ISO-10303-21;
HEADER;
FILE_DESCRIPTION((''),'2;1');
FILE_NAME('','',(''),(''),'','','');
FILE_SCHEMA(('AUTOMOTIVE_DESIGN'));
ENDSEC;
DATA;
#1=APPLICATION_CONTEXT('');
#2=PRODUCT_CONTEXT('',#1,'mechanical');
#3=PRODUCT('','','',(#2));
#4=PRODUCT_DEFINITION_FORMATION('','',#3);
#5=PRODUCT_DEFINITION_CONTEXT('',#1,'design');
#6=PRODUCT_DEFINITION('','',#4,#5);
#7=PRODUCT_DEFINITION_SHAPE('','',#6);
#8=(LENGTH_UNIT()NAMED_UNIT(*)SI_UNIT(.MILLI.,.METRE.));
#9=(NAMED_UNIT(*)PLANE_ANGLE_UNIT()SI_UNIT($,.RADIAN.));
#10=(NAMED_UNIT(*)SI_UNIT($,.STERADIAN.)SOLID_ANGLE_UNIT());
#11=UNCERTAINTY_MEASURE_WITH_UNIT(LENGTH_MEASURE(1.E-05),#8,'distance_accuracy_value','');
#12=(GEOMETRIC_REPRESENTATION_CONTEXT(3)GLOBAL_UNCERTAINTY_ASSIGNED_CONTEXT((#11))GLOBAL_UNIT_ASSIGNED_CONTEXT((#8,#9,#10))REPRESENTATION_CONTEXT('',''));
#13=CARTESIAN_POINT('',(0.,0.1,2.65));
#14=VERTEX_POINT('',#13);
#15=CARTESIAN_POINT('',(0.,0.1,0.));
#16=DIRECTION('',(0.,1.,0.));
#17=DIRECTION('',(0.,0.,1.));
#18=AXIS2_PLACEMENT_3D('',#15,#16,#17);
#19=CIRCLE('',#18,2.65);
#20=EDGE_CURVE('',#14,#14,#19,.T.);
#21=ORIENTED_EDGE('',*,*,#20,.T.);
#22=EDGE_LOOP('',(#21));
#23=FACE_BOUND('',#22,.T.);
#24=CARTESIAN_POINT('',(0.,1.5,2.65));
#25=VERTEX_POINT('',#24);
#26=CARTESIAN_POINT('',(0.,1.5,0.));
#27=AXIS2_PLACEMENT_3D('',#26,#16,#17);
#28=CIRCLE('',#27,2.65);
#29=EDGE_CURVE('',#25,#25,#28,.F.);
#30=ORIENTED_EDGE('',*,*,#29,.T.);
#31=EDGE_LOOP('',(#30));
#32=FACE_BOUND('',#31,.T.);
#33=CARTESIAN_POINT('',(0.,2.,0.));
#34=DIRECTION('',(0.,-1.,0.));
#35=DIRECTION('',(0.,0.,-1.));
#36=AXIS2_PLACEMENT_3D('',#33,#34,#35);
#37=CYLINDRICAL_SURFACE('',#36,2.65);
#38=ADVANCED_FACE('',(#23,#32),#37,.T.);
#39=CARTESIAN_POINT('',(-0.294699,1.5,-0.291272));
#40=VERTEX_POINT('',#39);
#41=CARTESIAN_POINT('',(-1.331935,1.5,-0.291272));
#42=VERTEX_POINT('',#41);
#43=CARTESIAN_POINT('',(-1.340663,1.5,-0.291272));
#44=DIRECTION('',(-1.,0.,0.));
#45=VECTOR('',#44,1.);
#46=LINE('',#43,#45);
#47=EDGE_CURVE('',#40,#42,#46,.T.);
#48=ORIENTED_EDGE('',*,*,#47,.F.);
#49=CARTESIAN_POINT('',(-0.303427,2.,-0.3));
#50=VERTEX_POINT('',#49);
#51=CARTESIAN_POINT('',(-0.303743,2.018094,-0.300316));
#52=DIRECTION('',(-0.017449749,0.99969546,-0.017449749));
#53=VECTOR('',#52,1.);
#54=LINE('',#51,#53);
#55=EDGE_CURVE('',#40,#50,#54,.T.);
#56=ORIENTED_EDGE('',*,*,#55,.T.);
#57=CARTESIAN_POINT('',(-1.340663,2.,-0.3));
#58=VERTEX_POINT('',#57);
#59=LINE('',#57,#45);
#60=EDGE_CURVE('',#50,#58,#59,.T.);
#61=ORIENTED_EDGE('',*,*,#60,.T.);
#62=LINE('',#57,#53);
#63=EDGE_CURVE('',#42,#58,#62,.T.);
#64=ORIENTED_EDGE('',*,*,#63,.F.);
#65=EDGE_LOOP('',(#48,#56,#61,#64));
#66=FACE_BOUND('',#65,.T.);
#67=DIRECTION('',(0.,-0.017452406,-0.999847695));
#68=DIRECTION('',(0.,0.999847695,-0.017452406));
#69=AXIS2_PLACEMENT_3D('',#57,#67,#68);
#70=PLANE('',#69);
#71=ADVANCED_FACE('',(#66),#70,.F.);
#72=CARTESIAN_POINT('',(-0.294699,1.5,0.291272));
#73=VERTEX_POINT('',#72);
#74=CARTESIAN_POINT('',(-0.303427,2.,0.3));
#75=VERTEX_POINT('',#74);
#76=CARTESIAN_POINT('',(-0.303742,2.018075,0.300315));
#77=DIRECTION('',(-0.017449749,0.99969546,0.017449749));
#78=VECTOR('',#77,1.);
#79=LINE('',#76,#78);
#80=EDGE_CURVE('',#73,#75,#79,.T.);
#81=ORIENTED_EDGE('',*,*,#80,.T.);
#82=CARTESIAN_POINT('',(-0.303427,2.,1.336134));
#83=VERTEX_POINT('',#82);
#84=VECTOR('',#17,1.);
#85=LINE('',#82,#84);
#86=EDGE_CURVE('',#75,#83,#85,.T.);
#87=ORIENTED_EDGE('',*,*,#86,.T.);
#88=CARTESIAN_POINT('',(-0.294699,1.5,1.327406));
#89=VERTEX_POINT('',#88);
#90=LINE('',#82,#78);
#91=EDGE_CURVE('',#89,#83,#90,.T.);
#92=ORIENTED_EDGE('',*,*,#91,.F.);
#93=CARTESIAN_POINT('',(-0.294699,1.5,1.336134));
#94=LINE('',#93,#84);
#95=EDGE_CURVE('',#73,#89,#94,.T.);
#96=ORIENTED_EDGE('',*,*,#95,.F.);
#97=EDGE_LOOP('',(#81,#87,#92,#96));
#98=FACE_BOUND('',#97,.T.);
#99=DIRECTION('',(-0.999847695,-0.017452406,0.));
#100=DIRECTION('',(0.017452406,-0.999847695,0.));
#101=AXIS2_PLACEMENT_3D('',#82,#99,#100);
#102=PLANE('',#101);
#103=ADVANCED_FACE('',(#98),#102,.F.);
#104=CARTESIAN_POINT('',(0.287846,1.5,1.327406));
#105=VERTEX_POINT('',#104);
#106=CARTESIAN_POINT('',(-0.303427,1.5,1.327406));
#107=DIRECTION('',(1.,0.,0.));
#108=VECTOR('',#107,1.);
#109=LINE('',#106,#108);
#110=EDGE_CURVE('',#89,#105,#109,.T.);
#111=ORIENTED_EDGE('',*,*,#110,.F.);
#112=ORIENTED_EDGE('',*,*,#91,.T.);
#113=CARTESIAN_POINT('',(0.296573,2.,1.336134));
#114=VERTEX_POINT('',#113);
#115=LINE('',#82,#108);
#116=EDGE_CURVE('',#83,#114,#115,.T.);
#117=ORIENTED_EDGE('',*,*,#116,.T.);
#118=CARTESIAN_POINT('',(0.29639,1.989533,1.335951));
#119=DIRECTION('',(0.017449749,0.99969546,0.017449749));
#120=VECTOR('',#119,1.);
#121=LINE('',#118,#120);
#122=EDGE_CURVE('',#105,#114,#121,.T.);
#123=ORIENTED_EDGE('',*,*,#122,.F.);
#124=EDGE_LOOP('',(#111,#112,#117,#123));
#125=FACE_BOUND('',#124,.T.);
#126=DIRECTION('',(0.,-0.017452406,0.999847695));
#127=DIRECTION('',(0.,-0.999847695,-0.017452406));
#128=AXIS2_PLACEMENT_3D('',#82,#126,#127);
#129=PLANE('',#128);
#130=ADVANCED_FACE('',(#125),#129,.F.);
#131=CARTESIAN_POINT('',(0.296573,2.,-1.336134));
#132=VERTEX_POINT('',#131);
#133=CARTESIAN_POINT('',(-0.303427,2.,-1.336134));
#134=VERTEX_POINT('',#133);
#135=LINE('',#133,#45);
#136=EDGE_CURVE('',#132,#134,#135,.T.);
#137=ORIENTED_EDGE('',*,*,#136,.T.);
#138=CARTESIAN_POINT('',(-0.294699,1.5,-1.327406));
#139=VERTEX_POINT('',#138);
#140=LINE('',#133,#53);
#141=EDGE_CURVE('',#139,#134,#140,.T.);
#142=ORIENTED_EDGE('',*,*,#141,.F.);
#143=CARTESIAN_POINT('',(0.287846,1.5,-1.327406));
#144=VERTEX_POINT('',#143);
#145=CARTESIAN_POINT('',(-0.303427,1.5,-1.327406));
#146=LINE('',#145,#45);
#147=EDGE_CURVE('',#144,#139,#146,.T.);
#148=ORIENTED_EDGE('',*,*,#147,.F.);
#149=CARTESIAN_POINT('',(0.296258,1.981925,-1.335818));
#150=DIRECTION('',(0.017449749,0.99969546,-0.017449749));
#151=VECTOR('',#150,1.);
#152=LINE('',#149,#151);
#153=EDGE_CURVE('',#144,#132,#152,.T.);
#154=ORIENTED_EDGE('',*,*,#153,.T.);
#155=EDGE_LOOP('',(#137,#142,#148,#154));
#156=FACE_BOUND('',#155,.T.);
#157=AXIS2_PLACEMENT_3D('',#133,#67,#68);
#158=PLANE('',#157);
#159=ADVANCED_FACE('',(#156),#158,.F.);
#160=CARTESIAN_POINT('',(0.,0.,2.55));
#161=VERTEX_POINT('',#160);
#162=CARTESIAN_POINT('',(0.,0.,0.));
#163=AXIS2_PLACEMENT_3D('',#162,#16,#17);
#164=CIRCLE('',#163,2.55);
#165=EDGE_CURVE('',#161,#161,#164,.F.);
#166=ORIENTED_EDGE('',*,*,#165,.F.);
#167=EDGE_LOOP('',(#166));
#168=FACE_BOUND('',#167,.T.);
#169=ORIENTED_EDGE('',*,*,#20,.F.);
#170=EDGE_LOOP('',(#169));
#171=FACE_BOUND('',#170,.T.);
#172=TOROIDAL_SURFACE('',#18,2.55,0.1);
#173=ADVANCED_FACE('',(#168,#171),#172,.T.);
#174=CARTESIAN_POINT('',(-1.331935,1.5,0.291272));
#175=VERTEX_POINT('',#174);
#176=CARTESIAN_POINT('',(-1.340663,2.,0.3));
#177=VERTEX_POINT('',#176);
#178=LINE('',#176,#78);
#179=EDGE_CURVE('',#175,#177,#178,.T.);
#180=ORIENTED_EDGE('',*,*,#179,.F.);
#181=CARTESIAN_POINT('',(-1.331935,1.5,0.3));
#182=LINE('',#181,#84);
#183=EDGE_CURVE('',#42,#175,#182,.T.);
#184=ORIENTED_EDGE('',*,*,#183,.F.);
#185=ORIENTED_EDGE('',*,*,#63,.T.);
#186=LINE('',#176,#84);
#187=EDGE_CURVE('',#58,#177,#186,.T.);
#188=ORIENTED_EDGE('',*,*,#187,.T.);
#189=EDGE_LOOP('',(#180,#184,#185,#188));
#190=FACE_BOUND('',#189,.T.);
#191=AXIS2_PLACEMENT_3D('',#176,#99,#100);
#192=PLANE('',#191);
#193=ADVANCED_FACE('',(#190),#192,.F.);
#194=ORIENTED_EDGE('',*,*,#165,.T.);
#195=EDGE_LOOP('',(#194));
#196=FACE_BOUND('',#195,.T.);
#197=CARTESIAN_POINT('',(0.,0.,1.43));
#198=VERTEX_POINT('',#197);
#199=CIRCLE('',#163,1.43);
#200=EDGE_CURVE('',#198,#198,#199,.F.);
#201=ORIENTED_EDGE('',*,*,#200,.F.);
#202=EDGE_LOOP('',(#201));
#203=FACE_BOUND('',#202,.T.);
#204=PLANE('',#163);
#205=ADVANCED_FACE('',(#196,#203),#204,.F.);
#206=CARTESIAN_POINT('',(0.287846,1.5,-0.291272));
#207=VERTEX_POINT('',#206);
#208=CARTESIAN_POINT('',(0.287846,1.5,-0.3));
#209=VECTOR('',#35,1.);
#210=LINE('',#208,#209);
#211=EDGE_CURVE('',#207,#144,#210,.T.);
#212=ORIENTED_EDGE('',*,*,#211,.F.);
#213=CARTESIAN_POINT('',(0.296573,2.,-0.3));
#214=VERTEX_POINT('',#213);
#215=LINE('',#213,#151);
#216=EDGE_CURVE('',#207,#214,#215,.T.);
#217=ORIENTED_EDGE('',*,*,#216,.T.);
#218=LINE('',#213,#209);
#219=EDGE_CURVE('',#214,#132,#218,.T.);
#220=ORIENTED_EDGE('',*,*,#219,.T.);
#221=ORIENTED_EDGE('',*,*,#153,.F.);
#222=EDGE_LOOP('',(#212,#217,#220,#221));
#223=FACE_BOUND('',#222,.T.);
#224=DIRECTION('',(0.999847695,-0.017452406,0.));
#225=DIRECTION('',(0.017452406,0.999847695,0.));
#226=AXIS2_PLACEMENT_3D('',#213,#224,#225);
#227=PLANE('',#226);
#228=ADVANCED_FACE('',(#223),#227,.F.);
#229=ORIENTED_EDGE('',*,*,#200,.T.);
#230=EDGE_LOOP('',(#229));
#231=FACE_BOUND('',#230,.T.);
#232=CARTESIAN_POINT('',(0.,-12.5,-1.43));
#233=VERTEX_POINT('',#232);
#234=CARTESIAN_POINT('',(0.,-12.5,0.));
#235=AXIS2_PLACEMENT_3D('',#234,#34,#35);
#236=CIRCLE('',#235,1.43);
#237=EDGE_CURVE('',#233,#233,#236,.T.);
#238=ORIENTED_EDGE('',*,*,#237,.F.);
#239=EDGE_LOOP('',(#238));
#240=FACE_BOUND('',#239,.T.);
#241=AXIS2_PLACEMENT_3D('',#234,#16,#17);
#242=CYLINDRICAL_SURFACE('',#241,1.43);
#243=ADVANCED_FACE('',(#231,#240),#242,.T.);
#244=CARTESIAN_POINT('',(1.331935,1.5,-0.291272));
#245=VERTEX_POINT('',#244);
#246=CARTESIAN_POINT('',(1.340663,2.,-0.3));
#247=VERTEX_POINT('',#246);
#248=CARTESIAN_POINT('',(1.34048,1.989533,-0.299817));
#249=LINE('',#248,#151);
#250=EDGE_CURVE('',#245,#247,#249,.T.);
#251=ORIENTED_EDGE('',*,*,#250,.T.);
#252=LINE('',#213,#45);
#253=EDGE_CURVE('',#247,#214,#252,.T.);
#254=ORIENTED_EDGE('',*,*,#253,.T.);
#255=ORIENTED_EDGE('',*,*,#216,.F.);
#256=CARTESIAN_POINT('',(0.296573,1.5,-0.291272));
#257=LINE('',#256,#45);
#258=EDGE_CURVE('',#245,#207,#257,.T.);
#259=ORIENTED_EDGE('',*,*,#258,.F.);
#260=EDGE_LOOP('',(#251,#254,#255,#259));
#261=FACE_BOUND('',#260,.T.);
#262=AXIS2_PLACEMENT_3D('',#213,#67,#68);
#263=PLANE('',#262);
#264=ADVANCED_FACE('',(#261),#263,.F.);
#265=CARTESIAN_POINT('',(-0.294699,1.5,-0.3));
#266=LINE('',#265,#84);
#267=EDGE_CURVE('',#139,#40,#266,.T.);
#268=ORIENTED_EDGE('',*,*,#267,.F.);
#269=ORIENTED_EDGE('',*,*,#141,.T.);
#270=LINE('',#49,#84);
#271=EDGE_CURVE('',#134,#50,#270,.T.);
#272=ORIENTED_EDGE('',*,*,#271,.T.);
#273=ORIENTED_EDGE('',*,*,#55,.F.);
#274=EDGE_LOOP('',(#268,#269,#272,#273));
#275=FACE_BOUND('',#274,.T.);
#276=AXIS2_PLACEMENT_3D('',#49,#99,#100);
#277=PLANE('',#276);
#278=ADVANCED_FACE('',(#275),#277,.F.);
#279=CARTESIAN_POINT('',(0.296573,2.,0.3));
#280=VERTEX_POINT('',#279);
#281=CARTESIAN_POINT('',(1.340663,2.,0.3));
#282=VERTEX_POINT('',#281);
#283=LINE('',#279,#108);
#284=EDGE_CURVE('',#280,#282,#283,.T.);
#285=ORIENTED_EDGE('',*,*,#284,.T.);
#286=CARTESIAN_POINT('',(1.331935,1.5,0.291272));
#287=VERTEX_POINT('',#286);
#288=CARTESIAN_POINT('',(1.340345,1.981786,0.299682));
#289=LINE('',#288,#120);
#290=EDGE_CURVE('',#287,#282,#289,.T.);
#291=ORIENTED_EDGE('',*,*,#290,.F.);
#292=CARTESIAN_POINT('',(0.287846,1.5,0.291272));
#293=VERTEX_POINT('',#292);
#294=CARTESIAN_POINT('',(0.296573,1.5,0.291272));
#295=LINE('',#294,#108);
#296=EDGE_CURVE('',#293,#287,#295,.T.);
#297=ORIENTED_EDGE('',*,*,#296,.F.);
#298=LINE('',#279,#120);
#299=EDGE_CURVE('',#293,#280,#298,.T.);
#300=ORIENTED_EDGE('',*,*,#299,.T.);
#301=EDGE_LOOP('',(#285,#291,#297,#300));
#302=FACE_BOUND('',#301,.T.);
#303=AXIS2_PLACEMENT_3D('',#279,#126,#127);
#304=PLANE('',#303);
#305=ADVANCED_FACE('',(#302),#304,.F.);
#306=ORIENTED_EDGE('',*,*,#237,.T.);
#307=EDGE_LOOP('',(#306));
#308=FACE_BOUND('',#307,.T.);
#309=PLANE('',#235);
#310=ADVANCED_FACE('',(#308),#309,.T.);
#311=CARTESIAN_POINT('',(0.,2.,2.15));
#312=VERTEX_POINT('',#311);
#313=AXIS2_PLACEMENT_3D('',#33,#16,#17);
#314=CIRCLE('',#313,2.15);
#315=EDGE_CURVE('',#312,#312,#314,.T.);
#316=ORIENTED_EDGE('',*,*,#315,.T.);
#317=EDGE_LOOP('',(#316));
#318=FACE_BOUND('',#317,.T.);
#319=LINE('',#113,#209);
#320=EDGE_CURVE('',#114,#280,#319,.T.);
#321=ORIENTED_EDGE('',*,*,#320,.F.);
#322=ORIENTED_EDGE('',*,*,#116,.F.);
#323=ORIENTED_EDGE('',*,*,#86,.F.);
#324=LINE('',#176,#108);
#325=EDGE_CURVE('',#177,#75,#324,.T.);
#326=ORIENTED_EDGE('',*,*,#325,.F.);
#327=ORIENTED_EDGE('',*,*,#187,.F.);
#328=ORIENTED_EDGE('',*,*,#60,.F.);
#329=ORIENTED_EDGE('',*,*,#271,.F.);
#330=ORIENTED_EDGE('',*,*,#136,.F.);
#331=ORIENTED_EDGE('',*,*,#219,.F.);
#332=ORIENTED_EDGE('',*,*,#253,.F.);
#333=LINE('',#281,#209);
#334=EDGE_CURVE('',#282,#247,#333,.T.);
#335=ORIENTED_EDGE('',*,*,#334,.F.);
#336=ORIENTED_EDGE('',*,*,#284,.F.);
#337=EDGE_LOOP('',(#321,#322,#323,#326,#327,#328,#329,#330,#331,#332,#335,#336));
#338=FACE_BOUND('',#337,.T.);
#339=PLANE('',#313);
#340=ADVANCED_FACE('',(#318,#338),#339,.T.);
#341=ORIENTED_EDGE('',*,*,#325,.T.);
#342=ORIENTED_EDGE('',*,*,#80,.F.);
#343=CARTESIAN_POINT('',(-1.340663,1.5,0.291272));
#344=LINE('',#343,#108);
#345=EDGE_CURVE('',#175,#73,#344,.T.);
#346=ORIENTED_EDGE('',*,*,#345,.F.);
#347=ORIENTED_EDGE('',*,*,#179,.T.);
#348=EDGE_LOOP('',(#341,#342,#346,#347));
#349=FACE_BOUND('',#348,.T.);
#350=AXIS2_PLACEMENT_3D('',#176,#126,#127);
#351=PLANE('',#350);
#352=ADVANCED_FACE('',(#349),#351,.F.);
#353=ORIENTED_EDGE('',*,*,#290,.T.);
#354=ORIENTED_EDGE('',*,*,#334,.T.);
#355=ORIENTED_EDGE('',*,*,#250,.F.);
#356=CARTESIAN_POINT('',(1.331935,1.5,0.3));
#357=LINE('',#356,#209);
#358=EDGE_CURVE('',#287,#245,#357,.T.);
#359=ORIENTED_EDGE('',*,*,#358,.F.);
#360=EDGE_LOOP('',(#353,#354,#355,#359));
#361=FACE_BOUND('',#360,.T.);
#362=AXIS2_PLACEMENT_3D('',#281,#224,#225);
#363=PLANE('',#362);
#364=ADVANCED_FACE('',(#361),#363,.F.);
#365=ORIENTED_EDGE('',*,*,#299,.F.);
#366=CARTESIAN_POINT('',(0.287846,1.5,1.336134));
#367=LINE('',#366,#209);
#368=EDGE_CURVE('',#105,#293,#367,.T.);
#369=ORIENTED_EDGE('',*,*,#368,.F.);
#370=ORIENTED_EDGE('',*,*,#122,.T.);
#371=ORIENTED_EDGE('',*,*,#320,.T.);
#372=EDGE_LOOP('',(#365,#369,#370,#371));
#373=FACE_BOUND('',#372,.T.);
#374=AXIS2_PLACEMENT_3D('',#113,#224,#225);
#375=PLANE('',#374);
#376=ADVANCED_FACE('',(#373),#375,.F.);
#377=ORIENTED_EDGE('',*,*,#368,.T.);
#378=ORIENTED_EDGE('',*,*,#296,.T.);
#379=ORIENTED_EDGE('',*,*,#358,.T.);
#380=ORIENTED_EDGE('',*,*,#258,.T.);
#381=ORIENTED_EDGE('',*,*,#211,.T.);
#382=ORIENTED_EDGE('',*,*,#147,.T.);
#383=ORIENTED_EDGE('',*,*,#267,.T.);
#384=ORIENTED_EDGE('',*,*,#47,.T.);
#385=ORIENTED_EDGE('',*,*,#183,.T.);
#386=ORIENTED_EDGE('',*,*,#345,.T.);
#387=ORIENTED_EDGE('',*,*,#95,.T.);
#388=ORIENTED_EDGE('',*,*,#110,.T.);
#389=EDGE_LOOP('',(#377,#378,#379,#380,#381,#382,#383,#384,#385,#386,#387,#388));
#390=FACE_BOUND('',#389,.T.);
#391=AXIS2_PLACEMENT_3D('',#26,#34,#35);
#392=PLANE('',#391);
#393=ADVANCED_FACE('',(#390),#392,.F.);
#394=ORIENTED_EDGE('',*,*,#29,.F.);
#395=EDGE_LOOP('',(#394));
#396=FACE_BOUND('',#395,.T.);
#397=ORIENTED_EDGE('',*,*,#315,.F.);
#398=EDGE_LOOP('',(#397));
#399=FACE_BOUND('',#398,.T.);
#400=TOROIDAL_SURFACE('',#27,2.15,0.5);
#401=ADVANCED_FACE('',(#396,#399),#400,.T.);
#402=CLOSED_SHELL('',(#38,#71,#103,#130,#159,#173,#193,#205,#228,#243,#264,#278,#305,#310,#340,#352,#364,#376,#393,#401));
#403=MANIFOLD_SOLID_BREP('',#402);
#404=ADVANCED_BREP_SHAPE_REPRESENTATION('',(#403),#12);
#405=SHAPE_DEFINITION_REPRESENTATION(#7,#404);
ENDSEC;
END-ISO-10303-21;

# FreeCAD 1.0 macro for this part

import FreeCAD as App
import Part
import Sketcher
from FreeCAD import Vector


def edges_at(feature, points):
    """Names of the edges that pass closest to the given points."""
    edges = feature.Shape.Edges
    near = lambda p: min(range(len(edges)), key=lambda i: edges[i].distToShape(Part.Vertex(*p))[0])
    return sorted({f"Edge{near(p) + 1}" for p in points})


def add_polygon(sketch, points):
    """Adds a closed chain of lines whose ends are joined by coincident constraints."""
    first, n = sketch.GeometryCount, len(points)
    for a, b in zip(points, points[1:] + points[:1]):
        sketch.addGeometry(Part.LineSegment(App.Vector(*a, 0), App.Vector(*b, 0)), False)
    for i in range(n):
        sketch.addConstraint(Sketcher.Constraint("Coincident", first + i, 2, first + (i + 1) % n, 1))

doc = App.newDocument("Part")
params = doc.addObject("Spreadsheet::Sheet", "Params")
for row, (alias, value) in enumerate([
    ("sketch1_diameter", "5.3 mm"),
    ("pad1_length", "2 mm"),
    ("sketch2_diameter", "2.86 mm"),
    ("pad2_length", "12.5 mm"),
    ("fillet_radius", "0.5 mm"),
    ("fillet2_radius", "0.1 mm"),
    ("sketch3_width", "0.6 mm"),
    ("pocket1_length", "0.5 mm"),
    ("pocket1_taper", "-1 deg"),
], start=1):
    params.set(f"A{row}", alias)
    params.set(f"B{row}", "=" + value)
    params.setAlias(f"B{row}", alias)

body = doc.addObject("PartDesign::Body", "Body")

sketch1 = body.newObject("Sketcher::SketchObject", "Sketch")
sketch1.AttachmentSupport = (doc.getObject("XZ_Plane"), [""])
sketch1.MapMode = "FlatFace"
sketch1.addGeometry(Part.Circle(Vector(0, 0, 0), Vector(0, 0, 1), 2.65), False)
sketch1.addConstraint([
    Sketcher.Constraint("Coincident", 0, 3, -1, 1),
    Sketcher.Constraint("Diameter", 0, 5.3),
])
sketch1.setExpression("Constraints[1]", "Params.sketch1_diameter")
pad1 = body.newObject("PartDesign::Pad", "Pad")
pad1.Profile = sketch1
pad1.setExpression("Length", "Params.pad1_length")
pad1.Reversed = True

sketch2 = body.newObject("Sketcher::SketchObject", "Sketch001")
sketch2.AttachmentSupport = (doc.getObject("XZ_Plane"), [""])
sketch2.MapMode = "FlatFace"
sketch2.addGeometry(Part.Circle(Vector(0, 0, 0), Vector(0, 0, 1), 1.43), False)
sketch2.addConstraint([
    Sketcher.Constraint("Coincident", 0, 3, -1, 1),
    Sketcher.Constraint("Diameter", 0, 2.86),
])
sketch2.setExpression("Constraints[1]", "Params.sketch2_diameter")
pad2 = body.newObject("PartDesign::Pad", "Pad001")
pad2.Profile = sketch2
pad2.setExpression("Length", "Params.pad2_length")
doc.recompute()

fillet = body.newObject("PartDesign::Fillet", "Fillet")
fillet.Base = (pad2, edges_at(pad2, [(-2.65, 2, 0)]))
fillet.setExpression("Radius", "Params.fillet_radius")
doc.recompute()

fillet2 = body.newObject("PartDesign::Fillet", "Fillet001")
fillet2.Base = (fillet, edges_at(fillet, [(-2.65, 0, 0)]))
fillet2.setExpression("Radius", "Params.fillet2_radius")

sketch3 = body.newObject("Sketcher::SketchObject", "Sketch002")
sketch3.AttachmentSupport = (doc.getObject("XZ_Plane"), [""])
sketch3.MapMode = "FlatFace"
sketch3.AttachmentOffset = App.Placement(Vector(0, 0, -2), App.Rotation())
add_polygon(sketch3, [(0.296573, -0.3), (0.296573, -1.336134), (-0.303427, -1.336134), (-0.303427, -0.3), (-1.340663, -0.3), (-1.340663, 0.3), (-0.303427, 0.3), (-0.303427, 1.336134), (0.296573, 1.336134), (0.296573, 0.3), (1.340663, 0.3), (1.340663, -0.3)])
sketch3.addConstraint([
    Sketcher.Constraint("Vertical", 0),
    Sketcher.Constraint("Horizontal", 1),
    Sketcher.Constraint("Vertical", 2),
    Sketcher.Constraint("Horizontal", 3),
    Sketcher.Constraint("Vertical", 4),
    Sketcher.Constraint("Horizontal", 5),
    Sketcher.Constraint("Vertical", 6),
    Sketcher.Constraint("Horizontal", 7),
    Sketcher.Constraint("Vertical", 8),
    Sketcher.Constraint("Horizontal", 9),
    Sketcher.Constraint("Vertical", 10),
    Sketcher.Constraint("Horizontal", 11),
    Sketcher.Constraint("Symmetric", 3, 2, 9, 2, -1, 1),
    Sketcher.Constraint("Symmetric", 2, 2, 5, 2, -1),
    Sketcher.Constraint("Symmetric", 0, 2, 7, 2, -1),
    Sketcher.Constraint("Horizontal", 3, 2, 10, 2),
    Sketcher.Constraint("Equal", 7, 4),
    Sketcher.Constraint("DistanceX", 1, 2, 1, 1, 0.6),
    Sketcher.Constraint("DistanceX", 9, 1, 9, 2, 1.04409),
    Sketcher.Constraint("DistanceX", 3, 2, 3, 1, 1.037236),
    Sketcher.Constraint("DistanceY", 0, 2, 0, 1, 1.036134),
])
sketch3.setExpression("Constraints[29]", "Params.sketch3_width")
pocket1 = body.newObject("PartDesign::Pocket", "Pocket")
pocket1.Profile = sketch3
pocket1.setExpression("Length", "Params.pocket1_length")
pocket1.Reversed = True
pocket1.setExpression("TaperAngle", "Params.pocket1_taper")

doc.recompute()
